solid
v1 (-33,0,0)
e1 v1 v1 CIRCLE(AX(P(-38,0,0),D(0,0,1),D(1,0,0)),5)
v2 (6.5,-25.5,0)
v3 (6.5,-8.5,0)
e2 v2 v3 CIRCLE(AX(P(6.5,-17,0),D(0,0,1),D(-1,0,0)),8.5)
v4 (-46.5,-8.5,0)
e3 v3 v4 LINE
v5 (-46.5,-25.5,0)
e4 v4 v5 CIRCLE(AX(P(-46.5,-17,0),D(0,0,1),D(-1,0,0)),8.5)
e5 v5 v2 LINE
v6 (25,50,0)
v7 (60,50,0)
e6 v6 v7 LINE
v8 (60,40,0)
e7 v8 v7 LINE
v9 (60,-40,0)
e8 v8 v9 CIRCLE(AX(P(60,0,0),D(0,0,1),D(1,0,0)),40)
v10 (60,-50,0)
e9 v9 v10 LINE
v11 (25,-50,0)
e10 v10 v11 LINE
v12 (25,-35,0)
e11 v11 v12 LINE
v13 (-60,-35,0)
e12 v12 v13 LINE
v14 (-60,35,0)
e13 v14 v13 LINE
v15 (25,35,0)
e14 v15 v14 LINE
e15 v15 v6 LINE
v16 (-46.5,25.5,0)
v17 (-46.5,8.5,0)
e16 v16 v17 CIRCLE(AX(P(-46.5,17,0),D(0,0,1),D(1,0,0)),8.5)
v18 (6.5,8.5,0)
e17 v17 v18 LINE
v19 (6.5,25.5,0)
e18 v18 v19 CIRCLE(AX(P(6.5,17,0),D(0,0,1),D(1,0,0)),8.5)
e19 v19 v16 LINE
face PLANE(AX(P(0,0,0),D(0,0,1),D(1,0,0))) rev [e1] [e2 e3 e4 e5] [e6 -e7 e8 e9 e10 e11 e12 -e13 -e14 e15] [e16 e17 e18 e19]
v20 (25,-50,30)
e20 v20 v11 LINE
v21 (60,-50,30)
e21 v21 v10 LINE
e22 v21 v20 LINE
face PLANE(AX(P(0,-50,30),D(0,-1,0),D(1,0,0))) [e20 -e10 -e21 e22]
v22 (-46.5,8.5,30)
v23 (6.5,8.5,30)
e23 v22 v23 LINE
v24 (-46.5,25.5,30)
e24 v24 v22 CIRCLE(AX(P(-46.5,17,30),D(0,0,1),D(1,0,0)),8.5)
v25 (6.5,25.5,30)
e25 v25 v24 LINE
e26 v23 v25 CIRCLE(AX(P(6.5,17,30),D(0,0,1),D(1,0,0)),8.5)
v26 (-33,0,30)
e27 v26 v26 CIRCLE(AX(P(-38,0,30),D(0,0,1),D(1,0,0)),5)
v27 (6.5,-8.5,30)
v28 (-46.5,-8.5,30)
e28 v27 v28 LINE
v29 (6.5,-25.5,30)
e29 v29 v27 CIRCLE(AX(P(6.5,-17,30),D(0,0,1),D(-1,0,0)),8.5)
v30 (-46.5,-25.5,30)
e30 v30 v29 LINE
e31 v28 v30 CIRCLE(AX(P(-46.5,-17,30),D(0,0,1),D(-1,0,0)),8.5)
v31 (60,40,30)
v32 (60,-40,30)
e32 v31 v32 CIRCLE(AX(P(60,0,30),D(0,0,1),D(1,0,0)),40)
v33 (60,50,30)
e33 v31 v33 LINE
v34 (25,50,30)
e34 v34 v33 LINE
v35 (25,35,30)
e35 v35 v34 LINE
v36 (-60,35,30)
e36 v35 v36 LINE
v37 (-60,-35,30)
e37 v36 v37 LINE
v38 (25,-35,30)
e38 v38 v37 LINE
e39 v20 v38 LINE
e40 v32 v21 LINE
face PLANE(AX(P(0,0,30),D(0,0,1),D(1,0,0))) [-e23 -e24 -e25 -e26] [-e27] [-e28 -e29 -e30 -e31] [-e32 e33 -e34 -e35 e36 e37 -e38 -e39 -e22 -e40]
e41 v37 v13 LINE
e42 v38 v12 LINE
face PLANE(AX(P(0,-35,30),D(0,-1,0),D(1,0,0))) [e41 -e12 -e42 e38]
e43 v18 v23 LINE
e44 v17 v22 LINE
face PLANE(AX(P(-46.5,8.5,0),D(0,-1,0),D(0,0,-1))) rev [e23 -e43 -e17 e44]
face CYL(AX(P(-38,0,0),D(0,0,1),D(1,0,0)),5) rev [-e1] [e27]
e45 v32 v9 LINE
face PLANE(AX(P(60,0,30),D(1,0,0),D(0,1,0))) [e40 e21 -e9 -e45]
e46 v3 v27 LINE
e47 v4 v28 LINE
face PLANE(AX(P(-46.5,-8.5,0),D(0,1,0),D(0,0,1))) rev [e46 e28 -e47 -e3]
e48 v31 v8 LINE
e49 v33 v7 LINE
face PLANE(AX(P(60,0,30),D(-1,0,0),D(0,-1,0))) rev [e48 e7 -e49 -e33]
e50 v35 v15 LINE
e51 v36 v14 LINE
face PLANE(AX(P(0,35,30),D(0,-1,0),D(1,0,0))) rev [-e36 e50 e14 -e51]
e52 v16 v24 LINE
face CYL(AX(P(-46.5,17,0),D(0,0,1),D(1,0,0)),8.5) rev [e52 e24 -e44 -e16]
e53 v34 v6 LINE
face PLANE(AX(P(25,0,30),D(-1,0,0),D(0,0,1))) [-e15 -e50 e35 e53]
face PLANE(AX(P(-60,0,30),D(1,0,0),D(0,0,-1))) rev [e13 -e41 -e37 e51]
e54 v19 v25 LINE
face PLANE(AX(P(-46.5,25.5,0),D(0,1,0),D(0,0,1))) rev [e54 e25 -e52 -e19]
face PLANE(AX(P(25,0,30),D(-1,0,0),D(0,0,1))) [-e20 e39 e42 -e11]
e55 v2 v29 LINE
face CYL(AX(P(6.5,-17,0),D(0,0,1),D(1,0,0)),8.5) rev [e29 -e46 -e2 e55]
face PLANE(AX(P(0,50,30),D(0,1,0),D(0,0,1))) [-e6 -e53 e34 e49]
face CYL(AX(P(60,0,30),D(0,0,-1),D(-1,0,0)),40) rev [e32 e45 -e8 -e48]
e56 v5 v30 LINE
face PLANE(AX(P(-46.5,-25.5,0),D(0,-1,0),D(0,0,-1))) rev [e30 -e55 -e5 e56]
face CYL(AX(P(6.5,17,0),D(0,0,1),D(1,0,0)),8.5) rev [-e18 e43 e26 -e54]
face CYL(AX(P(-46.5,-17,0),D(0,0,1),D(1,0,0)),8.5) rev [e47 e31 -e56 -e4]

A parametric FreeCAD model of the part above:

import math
import FreeCAD as App
import Part
import Sketcher
Q = App.Units.Quantity

doc = App.newDocument("Part")
params = doc.addObject("Spreadsheet::Sheet", "Params")
for row, (alias, value) in enumerate([
    ("sketch1_radius", "40 mm"),
    ("sketch1_width", "35 mm"),
    ("sketch1_width2", "85 mm"),
    ("sketch1_height", "10 mm"),
    ("sketch1_height2", "15 mm"),
    ("pad1_length", "30 mm"),
    ("sketch2_radius", "8.5 mm"),
    ("sketch2_width", "53 mm"),
    ("sketch3_diameter", "10 mm"),
], start=1):
    params.set(f"A{row}", alias)
    params.set(f"B{row}", "=" + value)
    params.setAlias(f"B{row}", alias)

body = doc.addObject("PartDesign::Body", "Body")

sketch1 = body.newObject("Sketcher::SketchObject", "Sketch")
sketch1.AttachmentSupport = (doc.getObject("XY_Plane"), [""])
sketch1.MapMode = "FlatFace"
sketch1.addGeometry([
    Part.LineSegment(App.Vector(60, -50, 0), App.Vector(60, -40, 0)),
    Part.ArcOfCircle(Part.Circle(App.Vector(60, 0, 0), App.Vector(0, 0, 1), 40), math.radians(-119), math.radians(-90)),
    Part.ArcOfCircle(Part.Circle(App.Vector(60, 0, 0), App.Vector(0, 0, 1), 40), math.radians(-151), math.radians(-119)),
    Part.ArcOfCircle(Part.Circle(App.Vector(60, 0, 0), App.Vector(0, 0, 1), 40), math.radians(151), math.radians(209)),
    Part.ArcOfCircle(Part.Circle(App.Vector(60, 0, 0), App.Vector(0, 0, 1), 40), math.radians(119), math.radians(151)),
    Part.ArcOfCircle(Part.Circle(App.Vector(60, 0, 0), App.Vector(0, 0, 1), 40), math.radians(90), math.radians(119)),
    Part.LineSegment(App.Vector(60, 40, 0), App.Vector(60, 50, 0)),
    Part.LineSegment(App.Vector(60, 50, 0), App.Vector(25, 50, 0)),
    Part.LineSegment(App.Vector(25, 50, 0), App.Vector(25, 35, 0)),
    Part.LineSegment(App.Vector(25, 35, 0), App.Vector(-60, 35, 0)),
    Part.LineSegment(App.Vector(-60, 35, 0), App.Vector(-60, -35, 0)),
    Part.LineSegment(App.Vector(-60, -35, 0), App.Vector(25, -35, 0)),
    Part.LineSegment(App.Vector(25, -35, 0), App.Vector(25, -50, 0)),
    Part.LineSegment(App.Vector(25, -50, 0), App.Vector(60, -50, 0)),
], False)
sketch1.addConstraint([
    Sketcher.Constraint("Coincident", 0, 2, 1, 2),
    Sketcher.Constraint("Tangent", 1, 1, 2, 2),
    Sketcher.Constraint("Tangent", 2, 1, 3, 2),
    Sketcher.Constraint("Tangent", 3, 1, 4, 2),
    Sketcher.Constraint("Tangent", 4, 1, 5, 2),
    Sketcher.Constraint("Coincident", 5, 1, 6, 1),
    Sketcher.Constraint("Coincident", 6, 2, 7, 1),
    Sketcher.Constraint("Coincident", 7, 2, 8, 1),
    Sketcher.Constraint("Coincident", 8, 2, 9, 1),
    Sketcher.Constraint("Coincident", 9, 2, 10, 1),
    Sketcher.Constraint("Coincident", 10, 2, 11, 1),
    Sketcher.Constraint("Coincident", 11, 2, 12, 1),
    Sketcher.Constraint("Coincident", 12, 2, 13, 1),
    Sketcher.Constraint("Coincident", 13, 2, 0, 1),
    Sketcher.Constraint("Vertical", 0),
    Sketcher.Constraint("Vertical", 6),
    Sketcher.Constraint("Horizontal", 7),
    Sketcher.Constraint("Vertical", 8),
    Sketcher.Constraint("Horizontal", 9),
    Sketcher.Constraint("Vertical", 10),
    Sketcher.Constraint("Horizontal", 11),
    Sketcher.Constraint("Vertical", 12),
    Sketcher.Constraint("Horizontal", 13),
    Sketcher.Constraint("Coincident", 3, 3, 1, 3),
    Sketcher.Constraint("Coincident", 5, 3, 1, 3),
    Sketcher.Constraint("Symmetric", 2, 1, 3, 1, -1),
    Sketcher.Constraint("Symmetric", 8, 2, 11, 2, -1),
    Sketcher.Constraint("Symmetric", 6, 2, 13, 2, -1),
    Sketcher.Constraint("Horizontal", 4, 1, 8, 2),
    Sketcher.Constraint("Horizontal", 1, 1, 10, 2),
    Sketcher.Constraint("Vertical", 5, 3, 0, 2),
    Sketcher.Constraint("Vertical", 3, 1, 7, 2),
    Sketcher.Constraint("Radius", 1, Q("40 mm")),
    Sketcher.Constraint("DistanceX", 7, 2, 7, 1, Q("35 mm")),
    Sketcher.Constraint("DistanceX", 9, 2, 9, 1, Q("85 mm")),
    Sketcher.Constraint("DistanceY", 0, 1, 0, 2, Q("10 mm")),
    Sketcher.Constraint("DistanceY", 8, 2, 8, 1, Q("15 mm")),
    Sketcher.Constraint("DistanceX", -1, 1, 1, 3, Q("60 mm")),
])
sketch1.setExpression("Constraints[32]", "Params.sketch1_radius")
sketch1.setExpression("Constraints[33]", "Params.sketch1_width")
sketch1.setExpression("Constraints[34]", "Params.sketch1_width2")
sketch1.setExpression("Constraints[35]", "Params.sketch1_height")
sketch1.setExpression("Constraints[36]", "Params.sketch1_height2")
pad1 = body.newObject("PartDesign::Pad", "Pad")
pad1.Profile = sketch1
pad1.setExpression("Length", "Params.pad1_length")

sketch2 = body.newObject("Sketcher::SketchObject", "Sketch001")
sketch2.AttachmentSupport = (doc.getObject("XY_Plane"), [""])
sketch2.MapMode = "FlatFace"
sketch2.AttachmentOffset = App.Placement(App.Vector(0, 0, 30), App.Rotation())
sketch2.addGeometry([
    Part.LineSegment(App.Vector(6, 26, 0), App.Vector(-46, 26, 0)),
    Part.ArcOfCircle(Part.Circle(App.Vector(-46, 17, 0), App.Vector(0, 0, 1), 8), math.radians(90), math.radians(270)),
    Part.LineSegment(App.Vector(-46, 8, 0), App.Vector(6, 8, 0)),
    Part.ArcOfCircle(Part.Circle(App.Vector(6, 17, 0), App.Vector(0, 0, 1), 8), math.radians(-90), math.radians(90)),
    Part.LineSegment(App.Vector(-46, -26, 0), App.Vector(6, -26, 0)),
    Part.ArcOfCircle(Part.Circle(App.Vector(6, -17, 0), App.Vector(0, 0, 1), 8), math.radians(-90), math.radians(90)),
    Part.LineSegment(App.Vector(6, -8, 0), App.Vector(-46, -8, 0)),
    Part.ArcOfCircle(Part.Circle(App.Vector(-46, -17, 0), App.Vector(0, 0, 1), 8), math.radians(90), math.radians(270)),
], False)
sketch2.addConstraint([
    Sketcher.Constraint("Tangent", 0, 2, 1, 1),
    Sketcher.Constraint("Tangent", 1, 2, 2, 1),
    Sketcher.Constraint("Tangent", 2, 2, 3, 1),
    Sketcher.Constraint("Tangent", 3, 2, 0, 1),
    Sketcher.Constraint("Tangent", 4, 2, 5, 1),
    Sketcher.Constraint("Tangent", 5, 2, 6, 1),
    Sketcher.Constraint("Tangent", 6, 2, 7, 1),
    Sketcher.Constraint("Tangent", 7, 2, 4, 1),
    Sketcher.Constraint("Horizontal", 0),
    Sketcher.Constraint("Horizontal", 2),
    Sketcher.Constraint("Horizontal", 4),
    Sketcher.Constraint("Horizontal", 6),
    Sketcher.Constraint("Equal", 3, 5),
    Sketcher.Constraint("Symmetric", 3, 3, 5, 3, -1),
    Sketcher.Constraint("Vertical", 1, 3, 7, 3),
    Sketcher.Constraint("Radius", 1, Q("8.5 mm")),
    Sketcher.Constraint("DistanceX", 0, 2, 0, 1, Q("53 mm")),
    Sketcher.Constraint("DistanceY", -1, 1, 1, 3, Q("17 mm")),
    Sketcher.Constraint("DistanceX", 1, 3, -1, 1, Q("46.5 mm")),
])
sketch2.setExpression("Constraints[15]", "Params.sketch2_radius")
sketch2.setExpression("Constraints[16]", "Params.sketch2_width")
pocket1 = body.newObject("PartDesign::Pocket", "Pocket")
pocket1.Profile = sketch2
pocket1.Type = "ThroughAll"

sketch3 = body.newObject("Sketcher::SketchObject", "Sketch002")
sketch3.AttachmentSupport = (doc.getObject("XY_Plane"), [""])
sketch3.MapMode = "FlatFace"
sketch3.AttachmentOffset = App.Placement(App.Vector(0, 0, 30), App.Rotation())
sketch3.addGeometry(Part.Circle(App.Vector(-38, 0, 0), App.Vector(0, 0, 1), 5), False)
sketch3.addConstraint([
    Sketcher.Constraint("PointOnObject", 0, 3, -1),
    Sketcher.Constraint("Diameter", 0, Q("10 mm")),
    Sketcher.Constraint("DistanceX", 0, 3, -1, 1, Q("38 mm")),
])
sketch3.setExpression("Constraints[1]", "Params.sketch3_diameter")
pocket2 = body.newObject("PartDesign::Pocket", "Pocket001")
pocket2.Profile = sketch3
pocket2.Type = "ThroughAll"

doc.recompute()
